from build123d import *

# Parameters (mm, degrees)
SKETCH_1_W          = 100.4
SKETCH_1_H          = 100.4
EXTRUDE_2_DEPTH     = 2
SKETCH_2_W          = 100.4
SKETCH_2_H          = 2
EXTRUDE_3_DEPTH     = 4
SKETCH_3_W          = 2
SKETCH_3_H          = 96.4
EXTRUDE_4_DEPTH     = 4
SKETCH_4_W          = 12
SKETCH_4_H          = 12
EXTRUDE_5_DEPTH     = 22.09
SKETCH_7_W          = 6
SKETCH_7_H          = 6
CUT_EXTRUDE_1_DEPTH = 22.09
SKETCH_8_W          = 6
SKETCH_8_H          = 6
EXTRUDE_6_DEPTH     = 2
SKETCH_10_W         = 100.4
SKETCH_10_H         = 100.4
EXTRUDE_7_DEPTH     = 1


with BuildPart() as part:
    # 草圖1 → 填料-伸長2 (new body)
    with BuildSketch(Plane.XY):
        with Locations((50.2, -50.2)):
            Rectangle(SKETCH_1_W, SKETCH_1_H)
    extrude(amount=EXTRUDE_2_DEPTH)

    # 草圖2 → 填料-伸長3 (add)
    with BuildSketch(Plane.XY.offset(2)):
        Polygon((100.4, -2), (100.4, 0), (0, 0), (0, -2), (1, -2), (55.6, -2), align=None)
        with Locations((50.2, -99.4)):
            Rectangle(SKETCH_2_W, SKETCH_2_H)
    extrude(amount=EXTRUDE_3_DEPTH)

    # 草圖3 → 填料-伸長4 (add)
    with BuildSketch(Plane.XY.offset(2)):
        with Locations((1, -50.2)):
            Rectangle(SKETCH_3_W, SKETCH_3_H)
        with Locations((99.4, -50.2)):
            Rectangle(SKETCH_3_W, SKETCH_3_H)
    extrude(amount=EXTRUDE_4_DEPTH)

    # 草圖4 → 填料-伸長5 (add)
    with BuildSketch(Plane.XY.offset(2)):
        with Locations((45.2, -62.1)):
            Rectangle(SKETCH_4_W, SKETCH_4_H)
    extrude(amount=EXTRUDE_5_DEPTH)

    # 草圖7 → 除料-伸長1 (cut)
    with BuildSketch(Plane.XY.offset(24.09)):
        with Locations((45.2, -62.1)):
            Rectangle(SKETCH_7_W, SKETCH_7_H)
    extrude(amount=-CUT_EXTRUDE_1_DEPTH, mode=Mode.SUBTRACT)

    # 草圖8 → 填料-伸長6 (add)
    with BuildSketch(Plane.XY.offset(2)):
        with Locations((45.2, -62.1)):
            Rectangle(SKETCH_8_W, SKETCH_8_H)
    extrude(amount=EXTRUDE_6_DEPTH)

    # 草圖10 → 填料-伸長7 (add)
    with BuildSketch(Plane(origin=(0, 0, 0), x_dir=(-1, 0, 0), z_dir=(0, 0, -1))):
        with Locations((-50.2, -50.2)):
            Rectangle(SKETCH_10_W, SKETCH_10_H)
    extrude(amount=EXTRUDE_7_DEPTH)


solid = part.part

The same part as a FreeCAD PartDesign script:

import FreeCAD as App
import Part
import Sketcher

V = App.Vector


def add_polygon(sketch, points):
    """Adds a closed chain of lines whose ends are joined by coincident constraints."""
    first, n = sketch.GeometryCount, len(points)
    for a, b in zip(points, points[1:] + points[:1]):
        sketch.addGeometry(Part.LineSegment(App.Vector(*a, 0), App.Vector(*b, 0)), False)
    for i in range(n):
        sketch.addConstraint(Sketcher.Constraint("Coincident", first + i, 2, first + (i + 1) % n, 1))

doc = App.newDocument("Part")
params = doc.addObject("Spreadsheet::Sheet", "Params")
for row, (alias, value) in enumerate([
    ("sketch1_width", "100.4 mm"),
    ("pad1_length", "2 mm"),
    ("sketch2_height", "2 mm"),
    ("sketch2_width", "100.4 mm"),
    ("pad2_length", "4 mm"),
    ("sketch3_width", "2 mm"),
    ("sketch3_height", "96.4 mm"),
    ("pad3_length", "4 mm"),
    ("sketch4_width", "12 mm"),
    ("pad4_length", "22.09 mm"),
    ("sketch5_width", "6 mm"),
    ("pocket1_length", "22.09 mm"),
    ("sketch6_width", "6 mm"),
    ("pad5_length", "2 mm"),
    ("sketch7_width", "100.4 mm"),
    ("pad6_length", "1 mm"),
], start=1):
    params.set(f"A{row}", alias)
    params.set(f"B{row}", "=" + value)
    params.setAlias(f"B{row}", alias)

body = doc.addObject("PartDesign::Body", "Body")

# Sketch on XY plane
sketch1 = body.newObject("Sketcher::SketchObject", "Sketch")
sketch1.AttachmentSupport = (doc.getObject("XY_Plane"), [""])
sketch1.MapMode = "FlatFace"
add_polygon(sketch1, [(0, 0), (0, -100), (100, -100), (100, 0)])  # lines 0-3
sketch1.addConstraint([
    Sketcher.Constraint("Vertical", 0),
    Sketcher.Constraint("Horizontal", 1),
    Sketcher.Constraint("Vertical", 2),
    Sketcher.Constraint("Horizontal", 3),
    Sketcher.Constraint("Coincident", 3, 2, -1, 1),
    Sketcher.Constraint("Equal", 3, 0),
    Sketcher.Constraint("DistanceX", 1, 1, 1, 2, 100.4),
])
sketch1.setExpression("Constraints[10]", "Params.sketch1_width")
pad1 = body.newObject("PartDesign::Pad", "Pad")
pad1.Profile = sketch1
pad1.setExpression("Length", "Params.pad1_length")

# Sketch on XY plane
sketch2 = body.newObject("Sketcher::SketchObject", "Sketch001")
sketch2.AttachmentSupport = (doc.getObject("XY_Plane"), [""])
sketch2.MapMode = "FlatFace"
sketch2.AttachmentOffset = App.Placement(V(0, 0, 2), App.Rotation())
add_polygon(sketch2, [(100.4, -2), (100.4, 0), (0, 0), (0, -2)])  # lines 0-3
add_polygon(sketch2, [(0, -98.4), (0, -100.4), (100.4, -100.4), (100.4, -98.4)])  # lines 4-7
sketch2.addConstraint([
    Sketcher.Constraint("Vertical", 0),
    Sketcher.Constraint("Horizontal", 1),
    Sketcher.Constraint("Vertical", 2),
    Sketcher.Constraint("Horizontal", 3),
    Sketcher.Constraint("Vertical", 4),
    Sketcher.Constraint("Horizontal", 5),
    Sketcher.Constraint("Vertical", 6),
    Sketcher.Constraint("Horizontal", 7),
    Sketcher.Constraint("Coincident", 1, 2, -1, 1),
    Sketcher.Constraint("PointOnObject", 4, 2, -2),
    Sketcher.Constraint("Vertical", 3, 2, 5, 2),
    Sketcher.Constraint("Equal", 2, 4),
    Sketcher.Constraint("DistanceY", 0, 1, 0, 2, 2.0),
    Sketcher.Constraint("DistanceX", 1, 2, 1, 1, 100.4),
    Sketcher.Constraint("DistanceY", 4, 2, -1, 1, 100.4),
])
sketch2.setExpression("Constraints[20]", "Params.sketch2_height")
sketch2.setExpression("Constraints[21]", "Params.sketch2_width")
pad2 = body.newObject("PartDesign::Pad", "Pad001")
pad2.Profile = sketch2
pad2.setExpression("Length", "Params.pad2_length")

# Sketch on XY plane
sketch3 = body.newObject("Sketcher::SketchObject", "Sketch002")
sketch3.AttachmentSupport = (doc.getObject("XY_Plane"), [""])
sketch3.MapMode = "FlatFace"
sketch3.AttachmentOffset = App.Placement(V(0, 0, 2), App.Rotation())
add_polygon(sketch3, [(0, -2), (0, -98.4), (2, -98.4), (2, -2)])  # lines 0-3
add_polygon(sketch3, [(98.4, -2), (98.4, -98.4), (100.4, -98.4), (100.4, -2)])  # lines 4-7
sketch3.addConstraint([
    Sketcher.Constraint("Vertical", 0),
    Sketcher.Constraint("Horizontal", 1),
    Sketcher.Constraint("Vertical", 2),
    Sketcher.Constraint("Horizontal", 3),
    Sketcher.Constraint("Vertical", 4),
    Sketcher.Constraint("Horizontal", 5),
    Sketcher.Constraint("Vertical", 6),
    Sketcher.Constraint("Horizontal", 7),
    Sketcher.Constraint("PointOnObject", 0, 2, -2),
    Sketcher.Constraint("Horizontal", 1, 2, 4, 2),
    Sketcher.Constraint("Horizontal", 3, 2, 6, 2),
    Sketcher.Constraint("Equal", 3, 5),
    Sketcher.Constraint("DistanceX", 1, 1, 1, 2, 2.0),
    Sketcher.Constraint("DistanceY", 0, 2, 0, 1, 96.4),
    Sketcher.Constraint("DistanceY", 2, 2, -1, 1, 2.0),
    Sketcher.Constraint("DistanceX", -1, 1, 4, 2, 98.4),
])
sketch3.setExpression("Constraints[20]", "Params.sketch3_width")
sketch3.setExpression("Constraints[21]", "Params.sketch3_height")
pad3 = body.newObject("PartDesign::Pad", "Pad002")
pad3.Profile = sketch3
pad3.setExpression("Length", "Params.pad3_length")

# Sketch on XY plane
sketch4 = body.newObject("Sketcher::SketchObject", "Sketch003")
sketch4.AttachmentSupport = (doc.getObject("XY_Plane"), [""])
sketch4.MapMode = "FlatFace"
sketch4.AttachmentOffset = App.Placement(V(0, 0, 2), App.Rotation())
add_polygon(sketch4, [(39, -56), (39, -68), (51, -68), (51, -56)])  # lines 0-3
sketch4.addConstraint([
    Sketcher.Constraint("Vertical", 0),
    Sketcher.Constraint("Horizontal", 1),
    Sketcher.Constraint("Vertical", 2),
    Sketcher.Constraint("Horizontal", 3),
    Sketcher.Constraint("Equal", 3, 0),
    Sketcher.Constraint("DistanceX", 1, 1, 1, 2, 12.0),
    Sketcher.Constraint("DistanceX", -1, 1, 0, 2, 39.2),
    Sketcher.Constraint("DistanceY", 0, 2, -1, 1, 68.1),
])
sketch4.setExpression("Constraints[9]", "Params.sketch4_width")
pad4 = body.newObject("PartDesign::Pad", "Pad003")
pad4.Profile = sketch4
pad4.setExpression("Length", "Params.pad4_length")

# Sketch on XY plane
sketch5 = body.newObject("Sketcher::SketchObject", "Sketch004")
sketch5.AttachmentSupport = (doc.getObject("XY_Plane"), [""])
sketch5.MapMode = "FlatFace"
sketch5.AttachmentOffset = App.Placement(V(0, 0, 24.09), App.Rotation())
add_polygon(sketch5, [(42, -59), (42, -65), (48, -65), (48, -59)])  # lines 0-3
sketch5.addConstraint([
    Sketcher.Constraint("Vertical", 0),
    Sketcher.Constraint("Horizontal", 1),
    Sketcher.Constraint("Vertical", 2),
    Sketcher.Constraint("Horizontal", 3),
    Sketcher.Constraint("Equal", 3, 0),
    Sketcher.Constraint("DistanceX", 1, 1, 1, 2, 6.0),
    Sketcher.Constraint("DistanceX", -1, 1, 0, 2, 42.2),
    Sketcher.Constraint("DistanceY", 0, 2, -1, 1, 65.1),
])
sketch5.setExpression("Constraints[9]", "Params.sketch5_width")
pocket1 = body.newObject("PartDesign::Pocket", "Pocket")
pocket1.Profile = sketch5
pocket1.setExpression("Length", "Params.pocket1_length")

# Sketch on XY plane
sketch6 = body.newObject("Sketcher::SketchObject", "Sketch005")
sketch6.AttachmentSupport = (doc.getObject("XY_Plane"), [""])
sketch6.MapMode = "FlatFace"
sketch6.AttachmentOffset = App.Placement(V(0, 0, 2), App.Rotation())
add_polygon(sketch6, [(42, -59), (42, -65), (48, -65), (48, -59)])  # lines 0-3
sketch6.addConstraint([
    Sketcher.Constraint("Vertical", 0),
    Sketcher.Constraint("Horizontal", 1),
    Sketcher.Constraint("Vertical", 2),
    Sketcher.Constraint("Horizontal", 3),
    Sketcher.Constraint("Equal", 3, 0),
    Sketcher.Constraint("DistanceX", 1, 1, 1, 2, 6.0),
    Sketcher.Constraint("DistanceX", -1, 1, 0, 2, 42.2),
    Sketcher.Constraint("DistanceY", 0, 2, -1, 1, 65.1),
])
sketch6.setExpression("Constraints[9]", "Params.sketch6_width")
pad5 = body.newObject("PartDesign::Pad", "Pad004")
pad5.Profile = sketch6
pad5.setExpression("Length", "Params.pad5_length")

# Sketch on XY plane
sketch7 = body.newObject("Sketcher::SketchObject", "Sketch006")
sketch7.AttachmentSupport = (doc.getObject("XY_Plane"), [""])
sketch7.MapMode = "FlatFace"
add_polygon(sketch7, [(100, 0), (100, -100), (0, -100), (0, 0)])  # lines 0-3
sketch7.addConstraint([
    Sketcher.Constraint("Vertical", 0),
    Sketcher.Constraint("Horizontal", 1),
    Sketcher.Constraint("Vertical", 2),
    Sketcher.Constraint("Horizontal", 3),
    Sketcher.Constraint("Coincident", 2, 2, -1, 1),
    Sketcher.Constraint("Equal", 3, 0),
    Sketcher.Constraint("DistanceX", 1, 2, 1, 1, 100.4),
])
sketch7.setExpression("Constraints[10]", "Params.sketch7_width")
pad6 = body.newObject("PartDesign::Pad", "Pad005")
pad6.Profile = sketch7
pad6.setExpression("Length", "Params.pad6_length")
pad6.Reversed = True

doc.recompute()
